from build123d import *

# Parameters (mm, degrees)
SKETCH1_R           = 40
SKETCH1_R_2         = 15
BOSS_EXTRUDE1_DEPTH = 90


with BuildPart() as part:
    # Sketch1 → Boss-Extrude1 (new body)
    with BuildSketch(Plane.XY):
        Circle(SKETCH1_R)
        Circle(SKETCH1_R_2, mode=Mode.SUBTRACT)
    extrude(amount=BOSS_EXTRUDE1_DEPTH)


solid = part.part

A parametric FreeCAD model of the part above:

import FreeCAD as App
import Part
import Sketcher

V = App.Vector

doc = App.newDocument("Part")
body = doc.addObject("PartDesign::Body", "Body")

sketch1 = body.newObject("Sketcher::SketchObject", "Sketch")
sketch1.AttachmentSupport = (doc.getObject("XY_Plane"), [""])
sketch1.MapMode = "FlatFace"
sketch1.addGeometry(Part.Circle(V(0, 0, 0), V(0, 0, 1), 40), False)
sketch1.addGeometry(Part.Circle(V(0, 0, 0), V(0, 0, 1), 15), False)
sketch1.addConstraint(Sketcher.Constraint("Coincident", 0, 3, -1, 1))
sketch1.addConstraint(Sketcher.Constraint("Coincident", 1, 3, -1, 1))
sketch1.addConstraint(Sketcher.Constraint("Diameter", 0, 80.0))
sketch1.addConstraint(Sketcher.Constraint("Diameter", 1, 30.0))
pad1 = body.newObject("PartDesign::Pad", "Pad")
pad1.Profile = sketch1
pad1.Length = 90

doc.recompute()
